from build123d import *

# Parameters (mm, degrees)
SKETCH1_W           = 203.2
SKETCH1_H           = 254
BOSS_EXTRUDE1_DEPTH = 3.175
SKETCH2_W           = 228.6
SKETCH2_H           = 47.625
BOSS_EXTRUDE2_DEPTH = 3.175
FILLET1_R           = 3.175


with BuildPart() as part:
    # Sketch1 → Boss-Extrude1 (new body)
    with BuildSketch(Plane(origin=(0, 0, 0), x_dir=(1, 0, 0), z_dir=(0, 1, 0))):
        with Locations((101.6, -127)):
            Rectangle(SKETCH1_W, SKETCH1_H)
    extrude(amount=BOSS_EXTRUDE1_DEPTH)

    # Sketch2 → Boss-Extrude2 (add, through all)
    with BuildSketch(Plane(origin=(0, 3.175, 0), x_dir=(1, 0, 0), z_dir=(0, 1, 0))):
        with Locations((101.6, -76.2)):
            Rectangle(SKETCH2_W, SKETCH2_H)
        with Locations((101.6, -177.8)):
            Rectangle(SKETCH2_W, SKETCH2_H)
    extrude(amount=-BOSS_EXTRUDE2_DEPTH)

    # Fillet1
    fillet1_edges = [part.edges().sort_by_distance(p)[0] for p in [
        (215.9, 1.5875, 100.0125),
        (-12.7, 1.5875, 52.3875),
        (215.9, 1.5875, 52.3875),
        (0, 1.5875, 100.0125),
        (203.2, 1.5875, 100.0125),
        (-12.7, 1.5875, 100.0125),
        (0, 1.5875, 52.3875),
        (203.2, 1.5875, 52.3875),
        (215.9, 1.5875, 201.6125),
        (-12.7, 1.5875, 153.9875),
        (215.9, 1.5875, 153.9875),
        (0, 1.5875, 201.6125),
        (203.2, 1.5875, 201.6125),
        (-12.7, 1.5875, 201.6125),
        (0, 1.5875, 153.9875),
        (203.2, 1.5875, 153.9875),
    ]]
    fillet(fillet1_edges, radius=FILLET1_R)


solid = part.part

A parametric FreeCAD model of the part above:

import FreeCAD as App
import Part
import Sketcher
Q = App.Units.Quantity


def edges_at(feature, points):
    """Names of the edges that pass closest to the given points."""
    edges = feature.Shape.Edges
    near = lambda p: min(range(len(edges)), key=lambda i: edges[i].distToShape(Part.Vertex(*p))[0])
    return sorted({f"Edge{near(p) + 1}" for p in points})

doc = App.newDocument("Part")
params = doc.addObject("Spreadsheet::Sheet", "Params")
for row, (alias, value) in enumerate([
    ("sketch1_width", "8 in"),
    ("sketch1_height", "10 in"),
    ("pad1_length", "0.125 in"),
    ("sketch2_width", "9 in"),
    ("sketch2_height", "1.875 in"),
    ("fillet_radius", "0.125 in"),
], start=1):
    params.set(f"A{row}", alias)
    params.set(f"B{row}", "=" + value)
    params.setAlias(f"B{row}", alias)

body = doc.addObject("PartDesign::Body", "Body")

# Sketch on XZ plane
sketch1 = body.newObject("Sketcher::SketchObject", "Sketch")
sketch1.AttachmentSupport = (doc.getObject("XZ_Plane"), [""])
sketch1.MapMode = "FlatFace"
sketch1.addGeometry(Part.LineSegment(App.Vector(0, 0, 0), App.Vector(0, 254, 0)), False)
sketch1.addGeometry(Part.LineSegment(App.Vector(0, 254, 0), App.Vector(203, 254, 0)), False)
sketch1.addGeometry(Part.LineSegment(App.Vector(203, 254, 0), App.Vector(203, 0, 0)), False)
sketch1.addGeometry(Part.LineSegment(App.Vector(203, 0, 0), App.Vector(0, 0, 0)), False)
sketch1.addConstraint(Sketcher.Constraint("Coincident", 0, 2, 1, 1))
sketch1.addConstraint(Sketcher.Constraint("Coincident", 1, 2, 2, 1))
sketch1.addConstraint(Sketcher.Constraint("Coincident", 2, 2, 3, 1))
sketch1.addConstraint(Sketcher.Constraint("Coincident", 3, 2, 0, 1))
sketch1.addConstraint(Sketcher.Constraint("Vertical", 0))
sketch1.addConstraint(Sketcher.Constraint("Horizontal", 1))
sketch1.addConstraint(Sketcher.Constraint("Vertical", 2))
sketch1.addConstraint(Sketcher.Constraint("Horizontal", 3))
sketch1.addConstraint(Sketcher.Constraint("Coincident", 3, 2, -1, 1))
sketch1.addConstraint(Sketcher.Constraint("DistanceX", 1, 1, 1, 2, Q("8 in")))
sketch1.addConstraint(Sketcher.Constraint("DistanceY", 0, 1, 0, 2, Q("10 in")))
sketch1.setExpression("Constraints[9]", "Params.sketch1_width")
sketch1.setExpression("Constraints[10]", "Params.sketch1_height")
pad1 = body.newObject("PartDesign::Pad", "Pad")
pad1.Profile = sketch1
pad1.setExpression("Length", "Params.pad1_length")
pad1.Reversed = True

# Sketch on XZ plane
sketch2 = body.newObject("Sketcher::SketchObject", "Sketch001")
sketch2.AttachmentSupport = (doc.getObject("XZ_Plane"), [""])
sketch2.MapMode = "FlatFace"
sketch2.AttachmentOffset = App.Placement(App.Vector(0, 0, -0.125 * 25.4), App.Rotation())
sketch2.addGeometry(Part.LineSegment(App.Vector(-13, 52, 0), App.Vector(-13, 100, 0)), False)
sketch2.addGeometry(Part.LineSegment(App.Vector(-13, 100, 0), App.Vector(216, 100, 0)), False)
sketch2.addGeometry(Part.LineSegment(App.Vector(216, 100, 0), App.Vector(216, 52, 0)), False)
sketch2.addGeometry(Part.LineSegment(App.Vector(216, 52, 0), App.Vector(-13, 52, 0)), False)
sketch2.addGeometry(Part.LineSegment(App.Vector(-13, 154, 0), App.Vector(-13, 202, 0)), False)
sketch2.addGeometry(Part.LineSegment(App.Vector(-13, 202, 0), App.Vector(216, 202, 0)), False)
sketch2.addGeometry(Part.LineSegment(App.Vector(216, 202, 0), App.Vector(216, 154, 0)), False)
sketch2.addGeometry(Part.LineSegment(App.Vector(216, 154, 0), App.Vector(-13, 154, 0)), False)
sketch2.addConstraint(Sketcher.Constraint("Coincident", 0, 2, 1, 1))
sketch2.addConstraint(Sketcher.Constraint("Coincident", 1, 2, 2, 1))
sketch2.addConstraint(Sketcher.Constraint("Coincident", 2, 2, 3, 1))
sketch2.addConstraint(Sketcher.Constraint("Coincident", 3, 2, 0, 1))
sketch2.addConstraint(Sketcher.Constraint("Coincident", 4, 2, 5, 1))
sketch2.addConstraint(Sketcher.Constraint("Coincident", 5, 2, 6, 1))
sketch2.addConstraint(Sketcher.Constraint("Coincident", 6, 2, 7, 1))
sketch2.addConstraint(Sketcher.Constraint("Coincident", 7, 2, 4, 1))
sketch2.addConstraint(Sketcher.Constraint("Vertical", 0))
sketch2.addConstraint(Sketcher.Constraint("Horizontal", 1))
sketch2.addConstraint(Sketcher.Constraint("Vertical", 2))
sketch2.addConstraint(Sketcher.Constraint("Horizontal", 3))
sketch2.addConstraint(Sketcher.Constraint("Vertical", 4))
sketch2.addConstraint(Sketcher.Constraint("Horizontal", 5))
sketch2.addConstraint(Sketcher.Constraint("Vertical", 6))
sketch2.addConstraint(Sketcher.Constraint("Horizontal", 7))
sketch2.addConstraint(Sketcher.Constraint("Vertical", 3, 2, 4, 2))
sketch2.addConstraint(Sketcher.Constraint("Vertical", 2, 2, 5, 2))
sketch2.addConstraint(Sketcher.Constraint("Equal", 2, 4))
sketch2.addConstraint(Sketcher.Constraint("DistanceX", 1, 1, 1, 2, Q("9 in")))
sketch2.addConstraint(Sketcher.Constraint("DistanceY", 0, 2, 4, 2, Q("4 in")))
sketch2.addConstraint(Sketcher.Constraint("DistanceX", 0, 2, -1, 1, Q("0.5 in")))
sketch2.addConstraint(Sketcher.Constraint("DistanceY", 0, 1, 0, 2, Q("1.875 in")))
sketch2.addConstraint(Sketcher.Constraint("DistanceY", -1, 1, 0, 2, Q("3.9375 in")))
sketch2.setExpression("Constraints[19]", "Params.sketch2_width")
sketch2.setExpression("Constraints[22]", "Params.sketch2_height")
pad2 = body.newObject("PartDesign::Pad", "Pad001")
pad2.Profile = sketch2
pad2.Type = "UpToLast"
doc.recompute()

fillet = body.newObject("PartDesign::Fillet", "Fillet")
fillet.Base = (pad2, edges_at(pad2, [
    (215.9, 1.587, 100.013),
    (-12.7, 1.587, 52.388),
    (215.9, 1.587, 52.388),
    (0, 1.587, 100.013),
    (203.2, 1.587, 100.013),
    (-12.7, 1.587, 100.013),
    (0, 1.587, 52.388),
    (203.2, 1.587, 52.388),
    (215.9, 1.587, 201.613),
    (-12.7, 1.587, 153.988),
    (215.9, 1.587, 153.988),
    (0, 1.587, 201.613),
    (203.2, 1.587, 201.613),
    (-12.7, 1.587, 201.613),
    (0, 1.587, 153.988),
    (203.2, 1.587, 153.988),
]))
fillet.setExpression("Radius", "Params.fillet_radius")

doc.recompute()
